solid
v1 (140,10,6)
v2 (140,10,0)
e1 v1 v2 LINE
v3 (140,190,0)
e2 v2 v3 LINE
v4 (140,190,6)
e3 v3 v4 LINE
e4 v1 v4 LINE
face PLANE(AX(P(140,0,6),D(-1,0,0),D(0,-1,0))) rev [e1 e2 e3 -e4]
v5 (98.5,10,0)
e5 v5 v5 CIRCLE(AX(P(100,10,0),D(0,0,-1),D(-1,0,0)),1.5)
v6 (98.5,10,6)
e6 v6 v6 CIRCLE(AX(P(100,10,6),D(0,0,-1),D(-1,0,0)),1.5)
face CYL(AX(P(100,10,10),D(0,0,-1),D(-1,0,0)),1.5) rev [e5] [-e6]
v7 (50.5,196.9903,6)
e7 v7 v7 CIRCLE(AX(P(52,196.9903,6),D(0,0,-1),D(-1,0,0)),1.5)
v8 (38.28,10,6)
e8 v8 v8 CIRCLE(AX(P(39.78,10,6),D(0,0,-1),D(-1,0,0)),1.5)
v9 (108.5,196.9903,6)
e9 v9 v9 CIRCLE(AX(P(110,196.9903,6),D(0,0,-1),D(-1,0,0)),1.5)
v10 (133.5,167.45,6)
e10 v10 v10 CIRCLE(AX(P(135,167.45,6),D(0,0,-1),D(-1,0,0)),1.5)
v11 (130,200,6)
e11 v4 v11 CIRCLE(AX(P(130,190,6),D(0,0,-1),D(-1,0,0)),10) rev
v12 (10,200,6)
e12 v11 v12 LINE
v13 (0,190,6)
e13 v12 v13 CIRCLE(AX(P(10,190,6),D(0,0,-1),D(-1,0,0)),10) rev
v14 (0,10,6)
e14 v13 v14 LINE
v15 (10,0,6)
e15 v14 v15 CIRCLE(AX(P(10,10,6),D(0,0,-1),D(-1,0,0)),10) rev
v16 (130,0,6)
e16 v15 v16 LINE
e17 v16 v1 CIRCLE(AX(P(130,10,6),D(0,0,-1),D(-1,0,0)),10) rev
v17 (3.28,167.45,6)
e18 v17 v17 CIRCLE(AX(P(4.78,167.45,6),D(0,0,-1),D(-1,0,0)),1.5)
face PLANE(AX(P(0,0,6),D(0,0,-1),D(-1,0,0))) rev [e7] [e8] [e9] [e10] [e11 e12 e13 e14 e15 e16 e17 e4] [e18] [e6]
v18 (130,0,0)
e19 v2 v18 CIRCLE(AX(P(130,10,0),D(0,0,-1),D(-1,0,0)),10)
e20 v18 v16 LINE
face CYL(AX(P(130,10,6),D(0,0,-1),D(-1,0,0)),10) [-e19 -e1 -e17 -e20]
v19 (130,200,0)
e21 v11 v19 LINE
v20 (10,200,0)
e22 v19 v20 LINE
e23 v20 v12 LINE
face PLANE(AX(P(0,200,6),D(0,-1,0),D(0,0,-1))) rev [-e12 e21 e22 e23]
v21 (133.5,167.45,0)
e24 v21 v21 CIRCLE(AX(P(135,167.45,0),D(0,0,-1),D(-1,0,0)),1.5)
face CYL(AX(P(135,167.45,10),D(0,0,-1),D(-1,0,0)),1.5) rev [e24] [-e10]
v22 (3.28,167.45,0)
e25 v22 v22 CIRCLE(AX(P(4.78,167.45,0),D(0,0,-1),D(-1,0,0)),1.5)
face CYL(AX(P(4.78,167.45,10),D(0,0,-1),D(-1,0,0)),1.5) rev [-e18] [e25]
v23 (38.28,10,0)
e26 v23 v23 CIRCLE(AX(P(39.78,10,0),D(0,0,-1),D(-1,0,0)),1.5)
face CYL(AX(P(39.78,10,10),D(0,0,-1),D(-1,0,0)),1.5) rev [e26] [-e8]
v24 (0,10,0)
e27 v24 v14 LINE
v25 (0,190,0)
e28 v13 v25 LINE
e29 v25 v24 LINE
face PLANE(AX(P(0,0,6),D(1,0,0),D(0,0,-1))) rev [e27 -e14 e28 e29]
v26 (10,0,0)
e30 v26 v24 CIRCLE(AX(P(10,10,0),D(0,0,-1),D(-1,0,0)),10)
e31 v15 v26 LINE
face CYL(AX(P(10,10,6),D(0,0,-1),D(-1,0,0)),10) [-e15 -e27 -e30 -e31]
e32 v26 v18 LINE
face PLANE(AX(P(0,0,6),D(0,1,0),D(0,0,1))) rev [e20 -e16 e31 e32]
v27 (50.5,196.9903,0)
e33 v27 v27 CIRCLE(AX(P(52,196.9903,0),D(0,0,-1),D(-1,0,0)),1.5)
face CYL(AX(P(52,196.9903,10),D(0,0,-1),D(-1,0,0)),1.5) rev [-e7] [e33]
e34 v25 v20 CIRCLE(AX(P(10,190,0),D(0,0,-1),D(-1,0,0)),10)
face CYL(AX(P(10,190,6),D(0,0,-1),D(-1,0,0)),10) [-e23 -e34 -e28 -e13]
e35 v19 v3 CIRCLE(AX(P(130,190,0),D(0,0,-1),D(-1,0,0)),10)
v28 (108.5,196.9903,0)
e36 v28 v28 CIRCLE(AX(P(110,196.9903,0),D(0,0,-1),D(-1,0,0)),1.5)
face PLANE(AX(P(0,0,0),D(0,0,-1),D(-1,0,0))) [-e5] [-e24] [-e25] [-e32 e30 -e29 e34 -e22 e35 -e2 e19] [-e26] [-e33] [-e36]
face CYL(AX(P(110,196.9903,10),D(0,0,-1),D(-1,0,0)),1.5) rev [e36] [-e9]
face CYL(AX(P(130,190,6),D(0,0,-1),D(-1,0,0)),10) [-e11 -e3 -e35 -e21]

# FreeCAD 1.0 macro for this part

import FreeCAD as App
import Part
import Sketcher
from FreeCAD import Vector


def edges_at(feature, points):
    """Names of the edges that pass closest to the given points."""
    edges = feature.Shape.Edges
    near = lambda p: min(range(len(edges)), key=lambda i: edges[i].distToShape(Part.Vertex(*p))[0])
    return sorted({f"Edge{near(p) + 1}" for p in points})


def add_polygon(sketch, points):
    """Adds a closed chain of lines whose ends are joined by coincident constraints."""
    first, n = sketch.GeometryCount, len(points)
    for a, b in zip(points, points[1:] + points[:1]):
        sketch.addGeometry(Part.LineSegment(App.Vector(*a, 0), App.Vector(*b, 0)), False)
    for i in range(n):
        sketch.addConstraint(Sketcher.Constraint("Coincident", first + i, 2, first + (i + 1) % n, 1))

doc = App.newDocument("Part")
params = doc.addObject("Spreadsheet::Sheet", "Params")
for row, (alias, value) in enumerate([
    ("sketch1_width", "140 mm"),
    ("sketch1_height", "200 mm"),
    ("pad1_length", "6 mm"),
    ("fillet_radius", "10 mm"),
    ("sketch2_diameter", "3 mm"),
    ("pocket1_length", "10 mm"),
    ("sketch3_diameter", "3 mm"),
    ("pocket2_length", "10 mm"),
], start=1):
    params.set(f"A{row}", alias)
    params.set(f"B{row}", "=" + value)
    params.setAlias(f"B{row}", alias)

body = doc.addObject("PartDesign::Body", "Body")

# Sketch on XY plane
sketch1 = body.newObject("Sketcher::SketchObject", "Sketch")
sketch1.AttachmentSupport = (doc.getObject("XY_Plane"), [""])
sketch1.MapMode = "FlatFace"
add_polygon(sketch1, [(0, 200), (0, 0), (140, 0), (140, 200)])  # lines 0-3
sketch1.addConstraint(Sketcher.Constraint("Vertical", 0))
sketch1.addConstraint(Sketcher.Constraint("Horizontal", 1))
sketch1.addConstraint(Sketcher.Constraint("Vertical", 2))
sketch1.addConstraint(Sketcher.Constraint("Horizontal", 3))
sketch1.addConstraint(Sketcher.Constraint("Coincident", 0, 2, -1, 1))
sketch1.addConstraint(Sketcher.Constraint("DistanceX", 1, 1, 1, 2, 140.0))
sketch1.addConstraint(Sketcher.Constraint("DistanceY", 0, 2, 0, 1, 200.0))
sketch1.setExpression("Constraints[9]", "Params.sketch1_width")
sketch1.setExpression("Constraints[10]", "Params.sketch1_height")
pad1 = body.newObject("PartDesign::Pad", "Pad")
pad1.Profile = sketch1
pad1.setExpression("Length", "Params.pad1_length")
doc.recompute()

fillet = body.newObject("PartDesign::Fillet", "Fillet")
fillet.Base = (pad1, edges_at(pad1, [
    (0, 200, 3),
    (140, 200, 3),
    (140, 0, 3),
    (0, 0, 3),
]))
fillet.setExpression("Radius", "Params.fillet_radius")

# Sketch on XY plane
sketch2 = body.newObject("Sketcher::SketchObject", "Sketch001")
sketch2.AttachmentSupport = (doc.getObject("XY_Plane"), [""])
sketch2.MapMode = "FlatFace"
sketch2.addGeometry(Part.Circle(Vector(100, 10, 0), Vector(0, 0, 1), 1.5), False)
sketch2.addGeometry(Part.Circle(Vector(39.78, 10, 0), Vector(0, 0, 1), 1.5), False)
sketch2.addGeometry(Part.Circle(Vector(135, 167.45, 0), Vector(0, 0, 1), 1.5), False)
sketch2.addGeometry(Part.Circle(Vector(4.78, 167.45, 0), Vector(0, 0, 1), 1.5), False)
sketch2.addConstraint(Sketcher.Constraint("Equal", 0, 1))
sketch2.addConstraint(Sketcher.Constraint("Equal", 1, 2))
sketch2.addConstraint(Sketcher.Constraint("Equal", 2, 3))
sketch2.addConstraint(Sketcher.Constraint("Horizontal", 0, 3, 1, 3))
sketch2.addConstraint(Sketcher.Constraint("Horizontal", 2, 3, 3, 3))
sketch2.addConstraint(Sketcher.Constraint("Diameter", 0, 3.0))
sketch2.addConstraint(Sketcher.Constraint("DistanceX", -1, 1, 0, 3, 100.0))
sketch2.addConstraint(Sketcher.Constraint("DistanceY", -1, 1, 0, 3, 10.0))
sketch2.addConstraint(Sketcher.Constraint("DistanceX", -1, 1, 2, 3, 135.0))
sketch2.addConstraint(Sketcher.Constraint("DistanceX", 3, 3, 1, 3, 35.0))
sketch2.addConstraint(Sketcher.Constraint("DistanceX", -1, 1, 1, 3, 39.78))
sketch2.addConstraint(Sketcher.Constraint("DistanceY", -1, 1, 2, 3, 167.45))
sketch2.setExpression("Constraints[5]", "Params.sketch2_diameter")
pocket1 = body.newObject("PartDesign::Pocket", "Pocket")
pocket1.Profile = sketch2
pocket1.setExpression("Length", "Params.pocket1_length")
pocket1.Reversed = True

# Sketch on XY plane
sketch3 = body.newObject("Sketcher::SketchObject", "Sketch002")
sketch3.AttachmentSupport = (doc.getObject("XY_Plane"), [""])
sketch3.MapMode = "FlatFace"
sketch3.addGeometry(Part.Circle(Vector(110, 196.9903, 0), Vector(0, 0, 1), 1.5), False)
sketch3.addGeometry(Part.Circle(Vector(52, 196.9903, 0), Vector(0, 0, 1), 1.5), False)
sketch3.addConstraint(Sketcher.Constraint("Equal", 0, 1))
sketch3.addConstraint(Sketcher.Constraint("Horizontal", 0, 3, 1, 3))
sketch3.addConstraint(Sketcher.Constraint("Diameter", 0, 3.0))
sketch3.addConstraint(Sketcher.Constraint("DistanceX", -1, 1, 0, 3, 110.0))
sketch3.addConstraint(Sketcher.Constraint("DistanceX", -1, 1, 1, 3, 52.0))
sketch3.addConstraint(Sketcher.Constraint("DistanceY", -1, 1, 0, 3, 196.9903))
sketch3.setExpression("Constraints[2]", "Params.sketch3_diameter")
pocket2 = body.newObject("PartDesign::Pocket", "Pocket001")
pocket2.Profile = sketch3
pocket2.setExpression("Length", "Params.pocket2_length")
pocket2.Reversed = True

doc.recompute()
